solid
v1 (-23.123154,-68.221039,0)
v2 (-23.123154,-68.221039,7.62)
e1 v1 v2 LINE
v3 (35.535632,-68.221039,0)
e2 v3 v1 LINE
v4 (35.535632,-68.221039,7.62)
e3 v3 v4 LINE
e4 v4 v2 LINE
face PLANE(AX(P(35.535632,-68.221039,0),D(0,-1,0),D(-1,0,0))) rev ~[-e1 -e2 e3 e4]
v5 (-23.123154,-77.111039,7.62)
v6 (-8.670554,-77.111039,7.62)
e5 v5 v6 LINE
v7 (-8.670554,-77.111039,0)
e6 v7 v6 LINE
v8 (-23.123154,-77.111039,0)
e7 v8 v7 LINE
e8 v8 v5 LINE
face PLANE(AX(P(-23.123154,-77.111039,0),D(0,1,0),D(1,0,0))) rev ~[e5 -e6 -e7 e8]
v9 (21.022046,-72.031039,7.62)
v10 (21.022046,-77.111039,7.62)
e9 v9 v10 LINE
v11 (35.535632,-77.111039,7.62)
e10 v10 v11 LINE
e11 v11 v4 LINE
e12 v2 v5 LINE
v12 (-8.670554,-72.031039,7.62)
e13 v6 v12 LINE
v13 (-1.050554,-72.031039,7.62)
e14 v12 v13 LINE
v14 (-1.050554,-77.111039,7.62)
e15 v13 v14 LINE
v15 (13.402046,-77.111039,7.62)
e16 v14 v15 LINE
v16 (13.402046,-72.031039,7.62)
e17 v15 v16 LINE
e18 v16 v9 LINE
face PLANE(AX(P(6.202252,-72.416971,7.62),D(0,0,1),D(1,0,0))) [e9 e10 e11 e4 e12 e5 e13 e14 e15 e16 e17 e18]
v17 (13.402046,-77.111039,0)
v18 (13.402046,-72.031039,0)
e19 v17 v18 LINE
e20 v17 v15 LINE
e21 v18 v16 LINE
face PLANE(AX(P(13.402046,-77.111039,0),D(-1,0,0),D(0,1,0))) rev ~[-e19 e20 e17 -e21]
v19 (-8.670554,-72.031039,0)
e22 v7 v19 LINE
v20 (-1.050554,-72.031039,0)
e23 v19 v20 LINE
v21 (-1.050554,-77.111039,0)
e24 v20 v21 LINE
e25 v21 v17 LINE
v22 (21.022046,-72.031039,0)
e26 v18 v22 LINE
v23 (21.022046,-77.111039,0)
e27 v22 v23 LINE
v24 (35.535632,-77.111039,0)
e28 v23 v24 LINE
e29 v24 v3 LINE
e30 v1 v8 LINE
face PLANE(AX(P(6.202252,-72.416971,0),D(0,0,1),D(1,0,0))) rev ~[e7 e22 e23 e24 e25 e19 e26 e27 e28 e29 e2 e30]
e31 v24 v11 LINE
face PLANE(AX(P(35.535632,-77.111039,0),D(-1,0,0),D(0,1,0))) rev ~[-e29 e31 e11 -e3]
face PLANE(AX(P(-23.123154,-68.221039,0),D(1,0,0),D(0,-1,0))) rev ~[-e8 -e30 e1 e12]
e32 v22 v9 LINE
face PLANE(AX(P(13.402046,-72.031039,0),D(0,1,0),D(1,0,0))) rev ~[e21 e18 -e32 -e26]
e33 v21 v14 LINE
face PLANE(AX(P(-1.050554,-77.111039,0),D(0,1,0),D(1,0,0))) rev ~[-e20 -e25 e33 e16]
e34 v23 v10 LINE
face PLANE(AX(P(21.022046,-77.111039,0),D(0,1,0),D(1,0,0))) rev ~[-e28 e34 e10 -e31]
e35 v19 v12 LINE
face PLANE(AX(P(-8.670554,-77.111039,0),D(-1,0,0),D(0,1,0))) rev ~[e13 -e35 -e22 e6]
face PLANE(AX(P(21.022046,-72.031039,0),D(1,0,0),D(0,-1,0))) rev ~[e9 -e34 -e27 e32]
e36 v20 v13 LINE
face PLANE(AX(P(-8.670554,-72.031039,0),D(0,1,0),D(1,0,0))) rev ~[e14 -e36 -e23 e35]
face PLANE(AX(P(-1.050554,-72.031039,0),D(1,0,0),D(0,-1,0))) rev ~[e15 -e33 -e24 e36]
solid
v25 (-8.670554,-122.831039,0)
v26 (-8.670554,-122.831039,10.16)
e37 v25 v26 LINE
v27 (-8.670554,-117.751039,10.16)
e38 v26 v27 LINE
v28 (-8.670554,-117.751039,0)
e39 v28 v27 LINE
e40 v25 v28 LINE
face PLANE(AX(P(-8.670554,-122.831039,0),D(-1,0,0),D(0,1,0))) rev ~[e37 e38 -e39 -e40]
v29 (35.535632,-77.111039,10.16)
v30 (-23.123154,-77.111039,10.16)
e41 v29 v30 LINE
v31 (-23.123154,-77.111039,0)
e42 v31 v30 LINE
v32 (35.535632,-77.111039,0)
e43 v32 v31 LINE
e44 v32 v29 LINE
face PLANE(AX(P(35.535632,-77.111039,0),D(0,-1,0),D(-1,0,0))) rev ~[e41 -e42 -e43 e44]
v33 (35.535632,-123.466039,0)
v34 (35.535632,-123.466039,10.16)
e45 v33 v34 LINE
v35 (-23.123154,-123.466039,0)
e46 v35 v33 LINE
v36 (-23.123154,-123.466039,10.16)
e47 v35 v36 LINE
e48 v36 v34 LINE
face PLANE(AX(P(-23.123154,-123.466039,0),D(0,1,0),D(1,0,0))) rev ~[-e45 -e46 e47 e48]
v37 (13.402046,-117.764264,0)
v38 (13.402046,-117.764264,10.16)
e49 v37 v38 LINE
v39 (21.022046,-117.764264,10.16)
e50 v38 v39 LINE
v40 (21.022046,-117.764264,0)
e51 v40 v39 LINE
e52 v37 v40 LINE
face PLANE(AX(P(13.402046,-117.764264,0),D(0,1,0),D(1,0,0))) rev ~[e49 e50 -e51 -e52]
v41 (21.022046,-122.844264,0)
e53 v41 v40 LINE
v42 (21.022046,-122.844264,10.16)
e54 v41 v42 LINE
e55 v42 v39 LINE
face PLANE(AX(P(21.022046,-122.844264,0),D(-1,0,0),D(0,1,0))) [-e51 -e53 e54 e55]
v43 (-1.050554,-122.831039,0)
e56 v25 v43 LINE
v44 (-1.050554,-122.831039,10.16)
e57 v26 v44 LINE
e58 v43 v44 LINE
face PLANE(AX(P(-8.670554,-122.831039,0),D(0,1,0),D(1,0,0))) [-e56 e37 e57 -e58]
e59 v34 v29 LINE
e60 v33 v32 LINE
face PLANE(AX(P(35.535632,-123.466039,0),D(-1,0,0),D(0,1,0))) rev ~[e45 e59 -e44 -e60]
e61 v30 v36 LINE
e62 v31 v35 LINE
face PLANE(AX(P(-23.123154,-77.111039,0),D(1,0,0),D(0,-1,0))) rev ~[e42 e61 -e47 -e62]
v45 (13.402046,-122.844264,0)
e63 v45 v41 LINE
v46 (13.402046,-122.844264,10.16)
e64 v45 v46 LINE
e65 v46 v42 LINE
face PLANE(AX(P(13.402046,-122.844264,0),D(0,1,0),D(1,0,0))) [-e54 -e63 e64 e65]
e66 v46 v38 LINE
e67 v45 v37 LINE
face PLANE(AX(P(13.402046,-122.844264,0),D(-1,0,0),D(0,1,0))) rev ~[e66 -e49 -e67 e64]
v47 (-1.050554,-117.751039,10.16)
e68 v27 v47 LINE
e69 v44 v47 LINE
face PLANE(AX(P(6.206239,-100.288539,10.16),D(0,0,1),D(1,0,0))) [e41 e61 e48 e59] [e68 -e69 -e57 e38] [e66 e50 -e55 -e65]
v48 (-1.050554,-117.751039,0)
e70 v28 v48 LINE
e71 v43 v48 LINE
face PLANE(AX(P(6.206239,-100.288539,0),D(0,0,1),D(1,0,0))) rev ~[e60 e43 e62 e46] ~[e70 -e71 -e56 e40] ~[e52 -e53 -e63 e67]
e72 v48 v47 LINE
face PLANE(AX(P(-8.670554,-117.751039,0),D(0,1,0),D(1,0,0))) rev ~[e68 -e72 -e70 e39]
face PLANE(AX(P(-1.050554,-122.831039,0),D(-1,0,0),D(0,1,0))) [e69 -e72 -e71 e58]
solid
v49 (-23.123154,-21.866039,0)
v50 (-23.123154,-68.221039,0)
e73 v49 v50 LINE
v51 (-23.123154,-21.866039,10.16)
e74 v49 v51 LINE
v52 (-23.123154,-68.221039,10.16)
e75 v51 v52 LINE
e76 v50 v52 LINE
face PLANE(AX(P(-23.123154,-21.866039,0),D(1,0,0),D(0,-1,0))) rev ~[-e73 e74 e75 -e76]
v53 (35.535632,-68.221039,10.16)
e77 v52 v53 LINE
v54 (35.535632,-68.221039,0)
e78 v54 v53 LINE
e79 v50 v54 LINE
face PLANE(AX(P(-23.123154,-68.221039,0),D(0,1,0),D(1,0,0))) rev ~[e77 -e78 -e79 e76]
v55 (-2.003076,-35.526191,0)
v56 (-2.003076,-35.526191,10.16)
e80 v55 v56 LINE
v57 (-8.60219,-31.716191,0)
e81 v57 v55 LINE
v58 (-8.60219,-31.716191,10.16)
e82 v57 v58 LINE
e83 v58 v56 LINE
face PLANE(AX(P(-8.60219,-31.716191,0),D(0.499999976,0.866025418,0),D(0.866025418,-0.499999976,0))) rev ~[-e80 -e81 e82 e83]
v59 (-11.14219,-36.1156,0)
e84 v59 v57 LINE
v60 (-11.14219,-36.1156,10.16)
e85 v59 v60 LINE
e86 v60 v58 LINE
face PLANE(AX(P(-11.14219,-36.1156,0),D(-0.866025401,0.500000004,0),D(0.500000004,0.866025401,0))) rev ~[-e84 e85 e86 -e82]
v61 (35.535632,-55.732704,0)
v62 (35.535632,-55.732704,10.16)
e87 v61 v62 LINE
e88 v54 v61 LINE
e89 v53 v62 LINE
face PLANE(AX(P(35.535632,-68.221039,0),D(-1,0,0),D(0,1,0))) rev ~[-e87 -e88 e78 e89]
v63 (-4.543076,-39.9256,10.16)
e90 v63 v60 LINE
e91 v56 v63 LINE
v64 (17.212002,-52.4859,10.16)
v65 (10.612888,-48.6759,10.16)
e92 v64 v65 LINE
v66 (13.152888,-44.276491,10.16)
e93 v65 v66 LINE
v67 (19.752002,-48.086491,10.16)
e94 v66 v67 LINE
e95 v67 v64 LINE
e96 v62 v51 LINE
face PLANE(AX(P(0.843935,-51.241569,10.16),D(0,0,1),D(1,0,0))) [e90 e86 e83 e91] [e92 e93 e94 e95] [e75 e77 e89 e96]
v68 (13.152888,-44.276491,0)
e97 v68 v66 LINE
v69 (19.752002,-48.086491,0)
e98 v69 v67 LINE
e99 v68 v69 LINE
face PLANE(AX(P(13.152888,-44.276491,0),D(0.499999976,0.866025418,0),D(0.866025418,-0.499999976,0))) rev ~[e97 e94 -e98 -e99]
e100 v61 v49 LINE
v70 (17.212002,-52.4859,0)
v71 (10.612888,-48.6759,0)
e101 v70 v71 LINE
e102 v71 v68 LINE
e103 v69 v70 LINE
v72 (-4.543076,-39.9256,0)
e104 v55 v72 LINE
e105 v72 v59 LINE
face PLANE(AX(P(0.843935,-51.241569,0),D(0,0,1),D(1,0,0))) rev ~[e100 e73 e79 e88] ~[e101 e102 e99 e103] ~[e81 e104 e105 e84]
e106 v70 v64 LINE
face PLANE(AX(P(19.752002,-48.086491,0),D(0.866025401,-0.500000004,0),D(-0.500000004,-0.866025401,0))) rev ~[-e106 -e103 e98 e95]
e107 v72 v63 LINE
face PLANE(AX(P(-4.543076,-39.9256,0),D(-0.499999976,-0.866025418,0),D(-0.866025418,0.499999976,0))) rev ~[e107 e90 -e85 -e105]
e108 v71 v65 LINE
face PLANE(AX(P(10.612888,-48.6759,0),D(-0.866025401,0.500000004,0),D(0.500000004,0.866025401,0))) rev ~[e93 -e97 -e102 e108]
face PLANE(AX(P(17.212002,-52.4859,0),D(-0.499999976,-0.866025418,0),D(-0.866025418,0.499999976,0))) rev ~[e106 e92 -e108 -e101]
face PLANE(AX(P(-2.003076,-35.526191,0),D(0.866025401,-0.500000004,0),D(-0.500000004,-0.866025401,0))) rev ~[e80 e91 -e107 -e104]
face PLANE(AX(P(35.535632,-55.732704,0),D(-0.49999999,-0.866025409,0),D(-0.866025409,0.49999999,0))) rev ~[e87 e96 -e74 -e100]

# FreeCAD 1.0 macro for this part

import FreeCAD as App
import Part
import Sketcher
Q = App.Units.Quantity

doc = App.newDocument("Part")
body = doc.addObject("PartDesign::Body", "Body")
body.AllowCompound = True

sketch1 = doc.addObject("Sketcher::SketchObject", "Sketch")
body.addObject(sketch1)
sketch1.AttachmentSupport = (doc.XY_Plane, [""])
sketch1.MapMode = "FlatFace"
sketch1.addGeometry([
    Part.LineSegment(App.Vector(36, -56, 0), App.Vector(-23, -22, 0)),
    Part.LineSegment(App.Vector(-23, -22, 0), App.Vector(-23, -68, 0)),
    Part.LineSegment(App.Vector(-23, -68, 0), App.Vector(36, -68, 0)),
    Part.LineSegment(App.Vector(36, -68, 0), App.Vector(36, -56, 0)),
    Part.LineSegment(App.Vector(20, -48, 0), App.Vector(17, -52, 0)),
    Part.LineSegment(App.Vector(17, -52, 0), App.Vector(11, -49, 0)),
    Part.LineSegment(App.Vector(11, -49, 0), App.Vector(13, -44, 0)),
    Part.LineSegment(App.Vector(13, -44, 0), App.Vector(20, -48, 0)),
    Part.LineSegment(App.Vector(-5, -40, 0), App.Vector(-11, -36, 0)),
    Part.LineSegment(App.Vector(-11, -36, 0), App.Vector(-9, -32, 0)),
    Part.LineSegment(App.Vector(-9, -32, 0), App.Vector(-2, -36, 0)),
    Part.LineSegment(App.Vector(-2, -36, 0), App.Vector(-5, -40, 0)),
    Part.LineSegment(App.Vector(-23, -77, 0), App.Vector(-23, -123, 0)),
    Part.LineSegment(App.Vector(-23, -123, 0), App.Vector(36, -123, 0)),
    Part.LineSegment(App.Vector(36, -123, 0), App.Vector(36, -77, 0)),
    Part.LineSegment(App.Vector(36, -77, 0), App.Vector(-23, -77, 0)),
    Part.LineSegment(App.Vector(21, -123, 0), App.Vector(13, -123, 0)),
    Part.LineSegment(App.Vector(13, -123, 0), App.Vector(13, -118, 0)),
    Part.LineSegment(App.Vector(13, -118, 0), App.Vector(21, -118, 0)),
    Part.LineSegment(App.Vector(21, -118, 0), App.Vector(21, -123, 0)),
    Part.LineSegment(App.Vector(-1, -123, 0), App.Vector(-9, -123, 0)),
    Part.LineSegment(App.Vector(-9, -123, 0), App.Vector(-9, -118, 0)),
    Part.LineSegment(App.Vector(-9, -118, 0), App.Vector(-1, -118, 0)),
    Part.LineSegment(App.Vector(-1, -118, 0), App.Vector(-1, -123, 0)),
], False)
sketch1.addConstraint([
    Sketcher.Constraint("Coincident", 0, 2, 1, 1),
    Sketcher.Constraint("Coincident", 1, 2, 2, 1),
    Sketcher.Constraint("Coincident", 2, 2, 3, 1),
    Sketcher.Constraint("Coincident", 3, 2, 0, 1),
    Sketcher.Constraint("Coincident", 4, 2, 5, 1),
    Sketcher.Constraint("Coincident", 5, 2, 6, 1),
    Sketcher.Constraint("Coincident", 6, 2, 7, 1),
    Sketcher.Constraint("Coincident", 7, 2, 4, 1),
    Sketcher.Constraint("Coincident", 8, 2, 9, 1),
    Sketcher.Constraint("Coincident", 9, 2, 10, 1),
    Sketcher.Constraint("Coincident", 10, 2, 11, 1),
    Sketcher.Constraint("Coincident", 11, 2, 8, 1),
    Sketcher.Constraint("Coincident", 12, 2, 13, 1),
    Sketcher.Constraint("Coincident", 13, 2, 14, 1),
    Sketcher.Constraint("Coincident", 14, 2, 15, 1),
    Sketcher.Constraint("Coincident", 15, 2, 12, 1),
    Sketcher.Constraint("Coincident", 16, 2, 17, 1),
    Sketcher.Constraint("Coincident", 17, 2, 18, 1),
    Sketcher.Constraint("Coincident", 18, 2, 19, 1),
    Sketcher.Constraint("Coincident", 19, 2, 16, 1),
    Sketcher.Constraint("Coincident", 20, 2, 21, 1),
    Sketcher.Constraint("Coincident", 21, 2, 22, 1),
    Sketcher.Constraint("Coincident", 22, 2, 23, 1),
    Sketcher.Constraint("Coincident", 23, 2, 20, 1),
    Sketcher.Constraint("Vertical", 1),
    Sketcher.Constraint("Horizontal", 2),
    Sketcher.Constraint("Vertical", 3),
    Sketcher.Constraint("Vertical", 12),
    Sketcher.Constraint("Horizontal", 13),
    Sketcher.Constraint("Vertical", 14),
    Sketcher.Constraint("Horizontal", 15),
    Sketcher.Constraint("Horizontal", 16),
    Sketcher.Constraint("Vertical", 17),
    Sketcher.Constraint("Horizontal", 18),
    Sketcher.Constraint("Vertical", 19),
    Sketcher.Constraint("Horizontal", 20),
    Sketcher.Constraint("Vertical", 21),
    Sketcher.Constraint("Horizontal", 22),
    Sketcher.Constraint("Vertical", 23),
    Sketcher.Constraint("Perpendicular", 0, 4),
    Sketcher.Constraint("Perpendicular", 4, 5),
    Sketcher.Constraint("Perpendicular", 5, 6),
    Sketcher.Constraint("Perpendicular", 6, 7),
    Sketcher.Constraint("Parallel", 7, 8),
    Sketcher.Constraint("Perpendicular", 8, 9),
    Sketcher.Constraint("Perpendicular", 9, 10),
    Sketcher.Constraint("Perpendicular", 10, 11),
    Sketcher.Constraint("Vertical", 1, 2, 12, 2),
    Sketcher.Constraint("Vertical", 3, 2, 13, 2),
    Sketcher.Constraint("Equal", 18, 20),
    Sketcher.Constraint("Equal", 1, 12),
    Sketcher.Constraint("Equal", 19, 21),
    Sketcher.Constraint("Equal", 7, 8),
    Sketcher.Constraint("Equal", 6, 9),
    Sketcher.Constraint("DistanceX", 16, 2, 16, 1, Q("0.3 in")),
    Sketcher.Constraint("DistanceY", 17, 1, 17, 2, Q("0.2 in")),
    Sketcher.Constraint("Angle", 0, Q("150.000001 deg")),
    Sketcher.Constraint("Distance", 4, Q("0.2 in")),
    Sketcher.Constraint("Distance", 5, Q("0.3 in")),
    Sketcher.Constraint("DistanceY", 1, 2, 1, 1, Q("1.825 in")),
    Sketcher.Constraint("DistanceY", 14, 2, 2, 2, Q("0.35 in")),
    Sketcher.Constraint("DistanceX", 12, 2, 16, 2, Q("1.438 in")),
    Sketcher.Constraint("DistanceX", 12, 2, 20, 2, Q("0.569 in")),
    Sketcher.Constraint("DistanceY", 12, 2, 20, 2, Q("0.025 in")),
    Sketcher.Constraint("DistanceY", 5, 2, 8, 2, Q("0.4945 in")),
    Sketcher.Constraint("DistanceX", -1, 1, 4, 2, Q("17.212002 mm")),
    Sketcher.Constraint("DistanceY", 4, 2, -1, 1, Q("52.4859 mm")),
    Sketcher.Constraint("Distance", 0, Q("67.733331 mm")),
    Sketcher.Constraint("DistanceY", 0, 2, -1, 1, Q("21.866039 mm")),
    Sketcher.Constraint("DistanceX", 8, 2, -1, 1, Q("11.14219 mm")),
    Sketcher.Constraint("DistanceX", 4, 2, 3, 2, Q("18.32363 mm")),
    Sketcher.Constraint("DistanceY", 16, 2, -1, 1, Q("122.844264 mm")),
])
pad1 = doc.addObject("PartDesign::Pad", "Pad")
body.addObject(pad1)
pad1.Profile = sketch1
pad1.Length = Q("0.4 in")
body2 = doc.addObject("PartDesign::Body", "Body001")

sketch2 = doc.addObject("Sketcher::SketchObject", "Sketch001")
body2.addObject(sketch2)
sketch2.AttachmentSupport = (doc.getObject("XY_Plane001"), [""])
sketch2.MapMode = "FlatFace"
sketch2.addGeometry([
    Part.LineSegment(App.Vector(36, -68, 0), App.Vector(-23, -68, 0)),
    Part.LineSegment(App.Vector(-23, -68, 0), App.Vector(-23, -77, 0)),
    Part.LineSegment(App.Vector(-23, -77, 0), App.Vector(-9, -77, 0)),
    Part.LineSegment(App.Vector(-9, -77, 0), App.Vector(-9, -72, 0)),
    Part.LineSegment(App.Vector(-9, -72, 0), App.Vector(-1, -72, 0)),
    Part.LineSegment(App.Vector(-1, -72, 0), App.Vector(-1, -77, 0)),
    Part.LineSegment(App.Vector(-1, -77, 0), App.Vector(13, -77, 0)),
    Part.LineSegment(App.Vector(13, -77, 0), App.Vector(13, -72, 0)),
    Part.LineSegment(App.Vector(13, -72, 0), App.Vector(21, -72, 0)),
    Part.LineSegment(App.Vector(21, -72, 0), App.Vector(21, -77, 0)),
    Part.LineSegment(App.Vector(21, -77, 0), App.Vector(36, -77, 0)),
    Part.LineSegment(App.Vector(36, -77, 0), App.Vector(36, -68, 0)),
], False)
sketch2.addConstraint([
    Sketcher.Constraint("Coincident", 0, 2, 1, 1),
    Sketcher.Constraint("Coincident", 1, 2, 2, 1),
    Sketcher.Constraint("Coincident", 2, 2, 3, 1),
    Sketcher.Constraint("Coincident", 3, 2, 4, 1),
    Sketcher.Constraint("Coincident", 4, 2, 5, 1),
    Sketcher.Constraint("Coincident", 5, 2, 6, 1),
    Sketcher.Constraint("Coincident", 6, 2, 7, 1),
    Sketcher.Constraint("Coincident", 7, 2, 8, 1),
    Sketcher.Constraint("Coincident", 8, 2, 9, 1),
    Sketcher.Constraint("Coincident", 9, 2, 10, 1),
    Sketcher.Constraint("Coincident", 10, 2, 11, 1),
    Sketcher.Constraint("Coincident", 11, 2, 0, 1),
    Sketcher.Constraint("Horizontal", 0),
    Sketcher.Constraint("Vertical", 1),
    Sketcher.Constraint("Horizontal", 2),
    Sketcher.Constraint("Vertical", 3),
    Sketcher.Constraint("Horizontal", 4),
    Sketcher.Constraint("Vertical", 5),
    Sketcher.Constraint("Horizontal", 6),
    Sketcher.Constraint("Vertical", 7),
    Sketcher.Constraint("Horizontal", 8),
    Sketcher.Constraint("Vertical", 9),
    Sketcher.Constraint("Horizontal", 10),
    Sketcher.Constraint("Vertical", 11),
    Sketcher.Constraint("Horizontal", 2, 2, 5, 2),
    Sketcher.Constraint("Horizontal", 4, 2, 7, 2),
    Sketcher.Constraint("Horizontal", 6, 2, 9, 2),
    Sketcher.Constraint("Equal", 2, 6),
    Sketcher.Constraint("Equal", 4, 8),
    Sketcher.Constraint("DistanceX", 4, 1, 4, 2, Q("0.3 in")),
    Sketcher.Constraint("DistanceY", 3, 1, 3, 2, Q("0.2 in")),
    Sketcher.Constraint("DistanceY", 1, 2, 1, 1, Q("0.35 in")),
    Sketcher.Constraint("DistanceX", 2, 1, 2, 2, Q("0.569 in")),
    Sketcher.Constraint("DistanceX", 0, 2, 0, 1, Q("58.658786 mm")),
    Sketcher.Constraint("DistanceY", 0, 2, -1, 1, Q("68.221039 mm")),
    Sketcher.Constraint("DistanceX", 0, 2, -1, 1, Q("23.123154 mm")),
])
pad2 = doc.addObject("PartDesign::Pad", "Pad001")
body2.addObject(pad2)
pad2.Profile = sketch2
pad2.Length = Q("0.3 in")

doc.recompute()
